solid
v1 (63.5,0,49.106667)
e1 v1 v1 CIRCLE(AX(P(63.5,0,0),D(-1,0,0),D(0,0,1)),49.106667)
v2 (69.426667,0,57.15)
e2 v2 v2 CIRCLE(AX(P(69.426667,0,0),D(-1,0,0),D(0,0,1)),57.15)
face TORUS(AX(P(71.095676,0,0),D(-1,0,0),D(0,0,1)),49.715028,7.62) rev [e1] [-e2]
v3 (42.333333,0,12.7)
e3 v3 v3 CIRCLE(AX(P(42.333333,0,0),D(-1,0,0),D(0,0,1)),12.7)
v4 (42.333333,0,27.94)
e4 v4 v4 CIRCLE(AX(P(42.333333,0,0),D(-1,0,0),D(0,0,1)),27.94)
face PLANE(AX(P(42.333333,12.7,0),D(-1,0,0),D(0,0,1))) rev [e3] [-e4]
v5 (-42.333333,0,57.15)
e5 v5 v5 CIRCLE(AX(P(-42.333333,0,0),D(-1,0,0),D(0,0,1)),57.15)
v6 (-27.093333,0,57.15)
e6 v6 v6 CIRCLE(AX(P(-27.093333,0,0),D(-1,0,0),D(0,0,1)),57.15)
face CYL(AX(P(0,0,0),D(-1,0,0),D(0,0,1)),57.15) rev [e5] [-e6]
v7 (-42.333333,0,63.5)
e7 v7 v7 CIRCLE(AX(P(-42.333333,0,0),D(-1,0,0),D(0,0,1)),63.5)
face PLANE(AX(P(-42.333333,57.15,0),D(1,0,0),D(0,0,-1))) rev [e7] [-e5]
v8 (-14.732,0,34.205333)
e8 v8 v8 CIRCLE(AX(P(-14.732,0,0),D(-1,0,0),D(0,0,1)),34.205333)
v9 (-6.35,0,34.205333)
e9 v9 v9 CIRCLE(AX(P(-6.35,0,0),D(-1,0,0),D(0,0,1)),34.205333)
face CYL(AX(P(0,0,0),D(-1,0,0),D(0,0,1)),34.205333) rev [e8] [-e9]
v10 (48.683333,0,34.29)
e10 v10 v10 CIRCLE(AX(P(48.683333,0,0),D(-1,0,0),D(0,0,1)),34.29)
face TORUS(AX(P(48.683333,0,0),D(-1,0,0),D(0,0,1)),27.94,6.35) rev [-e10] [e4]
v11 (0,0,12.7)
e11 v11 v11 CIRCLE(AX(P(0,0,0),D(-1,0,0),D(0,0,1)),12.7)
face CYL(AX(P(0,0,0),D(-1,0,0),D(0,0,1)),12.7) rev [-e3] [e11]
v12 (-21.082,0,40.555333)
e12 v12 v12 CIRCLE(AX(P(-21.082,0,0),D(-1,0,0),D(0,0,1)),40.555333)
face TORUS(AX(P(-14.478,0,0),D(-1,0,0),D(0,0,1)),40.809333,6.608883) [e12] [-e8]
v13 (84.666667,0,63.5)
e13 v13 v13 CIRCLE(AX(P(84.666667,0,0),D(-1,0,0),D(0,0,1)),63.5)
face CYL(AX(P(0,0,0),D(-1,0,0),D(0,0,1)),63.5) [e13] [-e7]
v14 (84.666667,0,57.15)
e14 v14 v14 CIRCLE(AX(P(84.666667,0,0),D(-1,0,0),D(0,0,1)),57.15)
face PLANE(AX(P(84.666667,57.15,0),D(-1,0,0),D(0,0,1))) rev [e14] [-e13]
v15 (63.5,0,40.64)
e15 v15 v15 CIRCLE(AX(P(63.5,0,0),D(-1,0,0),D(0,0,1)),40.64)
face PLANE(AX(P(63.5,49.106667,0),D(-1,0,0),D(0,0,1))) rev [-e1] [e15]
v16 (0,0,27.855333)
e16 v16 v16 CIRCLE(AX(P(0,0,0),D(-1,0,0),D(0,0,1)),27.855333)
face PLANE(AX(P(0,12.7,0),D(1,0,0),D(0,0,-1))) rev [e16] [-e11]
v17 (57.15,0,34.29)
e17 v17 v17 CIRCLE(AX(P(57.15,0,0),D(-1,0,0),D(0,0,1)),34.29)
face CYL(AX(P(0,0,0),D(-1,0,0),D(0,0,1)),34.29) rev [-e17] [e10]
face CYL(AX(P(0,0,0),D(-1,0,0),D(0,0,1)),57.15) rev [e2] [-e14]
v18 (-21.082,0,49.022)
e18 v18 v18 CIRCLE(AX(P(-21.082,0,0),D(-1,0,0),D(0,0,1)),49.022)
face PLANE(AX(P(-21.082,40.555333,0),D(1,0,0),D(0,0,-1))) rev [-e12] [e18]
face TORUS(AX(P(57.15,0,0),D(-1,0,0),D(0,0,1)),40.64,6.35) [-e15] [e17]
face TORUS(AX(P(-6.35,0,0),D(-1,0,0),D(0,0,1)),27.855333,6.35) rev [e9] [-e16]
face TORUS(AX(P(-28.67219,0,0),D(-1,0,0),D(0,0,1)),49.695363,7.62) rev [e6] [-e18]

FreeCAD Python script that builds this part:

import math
import FreeCAD as App
import Part
import Sketcher
Q = App.Units.Quantity

doc = App.newDocument("Part")
body = doc.addObject("PartDesign::Body", "Body")

sketch1 = body.newObject("Sketcher::SketchObject", "Sketch")
sketch1.AttachmentSupport = (doc.getObject("XY_Plane"), [""])
sketch1.MapMode = "FlatFace"
sketch1.addGeometry(Part.LineSegment(App.Vector(85, 64, 0), App.Vector(-42, 64, 0)), False)
sketch1.addGeometry(Part.LineSegment(App.Vector(-42, 64, 0), App.Vector(-42, 57, 0)), False)
sketch1.addGeometry(Part.LineSegment(App.Vector(-42, 57, 0), App.Vector(-27, 57, 0)), False)
sketch1.addGeometry(Part.ArcOfCircle(Part.Circle(App.Vector(-29, 50, 0), App.Vector(0, 0, 1), 8), math.radians(-5), math.radians(78)), False)
sketch1.addGeometry(Part.LineSegment(App.Vector(-21, 49, 0), App.Vector(-21, 41, 0)), False)
sketch1.addGeometry(Part.ArcOfCircle(Part.Circle(App.Vector(-14, 41, 0), App.Vector(0, 0, 1), 7), math.radians(-178), math.radians(-92)), False)
sketch1.addGeometry(Part.LineSegment(App.Vector(-15, 34, 0), App.Vector(-6, 34, 0)), False)
sketch1.addGeometry(Part.ArcOfCircle(Part.Circle(App.Vector(-6, 28, 0), App.Vector(0, 0, 1), 6), math.radians(0), math.radians(90)), False)
sketch1.addGeometry(Part.LineSegment(App.Vector(0, 28, 0), App.Vector(0, 13, 0)), False)
sketch1.addGeometry(Part.LineSegment(App.Vector(0, 13, 0), App.Vector(42, 13, 0)), False)
sketch1.addGeometry(Part.LineSegment(App.Vector(42, 13, 0), App.Vector(42, 28, 0)), False)
sketch1.addGeometry(Part.ArcOfCircle(Part.Circle(App.Vector(49, 28, 0), App.Vector(0, 0, 1), 6), math.radians(90), math.radians(180)), False)
sketch1.addGeometry(Part.LineSegment(App.Vector(49, 34, 0), App.Vector(57, 34, 0)), False)
sketch1.addGeometry(Part.ArcOfCircle(Part.Circle(App.Vector(57, 41, 0), App.Vector(0, 0, 1), 6), math.radians(-90), math.radians(0)), False)
sketch1.addGeometry(Part.LineSegment(App.Vector(63, 41, 0), App.Vector(63, 49, 0)), False)
sketch1.addGeometry(Part.ArcOfCircle(Part.Circle(App.Vector(71, 50, 0), App.Vector(0, 0, 1), 8), math.radians(103), math.radians(185)), False)
sketch1.addGeometry(Part.LineSegment(App.Vector(69, 57, 0), App.Vector(85, 57, 0)), False)
sketch1.addGeometry(Part.LineSegment(App.Vector(85, 57, 0), App.Vector(85, 64, 0)), False)
sketch1.addConstraint(Sketcher.Constraint("Coincident", 0, 2, 1, 1))
sketch1.addConstraint(Sketcher.Constraint("Coincident", 1, 2, 2, 1))
sketch1.addConstraint(Sketcher.Constraint("Coincident", 2, 2, 3, 2))
sketch1.addConstraint(Sketcher.Constraint("Coincident", 3, 1, 4, 1))
sketch1.addConstraint(Sketcher.Constraint("Coincident", 4, 2, 5, 1))
sketch1.addConstraint(Sketcher.Constraint("Coincident", 5, 2, 6, 1))
sketch1.addConstraint(Sketcher.Constraint("Tangent", 6, 2, 7, 2))
sketch1.addConstraint(Sketcher.Constraint("Tangent", 7, 1, 8, 1))
sketch1.addConstraint(Sketcher.Constraint("Coincident", 8, 2, 9, 1))
sketch1.addConstraint(Sketcher.Constraint("Coincident", 9, 2, 10, 1))
sketch1.addConstraint(Sketcher.Constraint("Tangent", 10, 2, 11, 2))
sketch1.addConstraint(Sketcher.Constraint("Tangent", 11, 1, 12, 1))
sketch1.addConstraint(Sketcher.Constraint("Tangent", 12, 2, 13, 1))
sketch1.addConstraint(Sketcher.Constraint("Tangent", 13, 2, 14, 1))
sketch1.addConstraint(Sketcher.Constraint("Coincident", 14, 2, 15, 2))
sketch1.addConstraint(Sketcher.Constraint("Coincident", 15, 1, 16, 1))
sketch1.addConstraint(Sketcher.Constraint("Coincident", 16, 2, 17, 1))
sketch1.addConstraint(Sketcher.Constraint("Coincident", 17, 2, 0, 1))
sketch1.addConstraint(Sketcher.Constraint("Horizontal", 0))
sketch1.addConstraint(Sketcher.Constraint("Vertical", 1))
sketch1.addConstraint(Sketcher.Constraint("Horizontal", 2))
sketch1.addConstraint(Sketcher.Constraint("Vertical", 4))
sketch1.addConstraint(Sketcher.Constraint("Horizontal", 6))
sketch1.addConstraint(Sketcher.Constraint("Vertical", 8))
sketch1.addConstraint(Sketcher.Constraint("Horizontal", 9))
sketch1.addConstraint(Sketcher.Constraint("Vertical", 10))
sketch1.addConstraint(Sketcher.Constraint("Horizontal", 12))
sketch1.addConstraint(Sketcher.Constraint("Vertical", 14))
sketch1.addConstraint(Sketcher.Constraint("Horizontal", 16))
sketch1.addConstraint(Sketcher.Constraint("Vertical", 17))
sketch1.addConstraint(Sketcher.Constraint("Equal", 7, 11))
sketch1.addConstraint(Sketcher.Constraint("Equal", 11, 13))
sketch1.addConstraint(Sketcher.Constraint("Equal", 3, 15))
sketch1.addConstraint(Sketcher.Constraint("PointOnObject", 7, 1, -2))
sketch1.addConstraint(Sketcher.Constraint("Horizontal", 2, 2, 15, 1))
sketch1.addConstraint(Sketcher.Constraint("Equal", 2, 16))
sketch1.addConstraint(Sketcher.Constraint("Equal", 12, 4))
sketch1.addConstraint(Sketcher.Constraint("Equal", 16, 10))
sketch1.addConstraint(Sketcher.Constraint("Equal", 4, 14))
sketch1.addConstraint(Sketcher.Constraint("Radius", 3, Q("0.3 in")))
sketch1.addConstraint(Sketcher.Constraint("DistanceX", 0, 2, 0, 1, Q("5 in")))
sketch1.addConstraint(Sketcher.Constraint("Radius", 7, Q("0.25 in")))
sketch1.addConstraint(Sketcher.Constraint("DistanceX", 2, 1, 2, 2, Q("0.6 in")))
sketch1.addConstraint(Sketcher.Constraint("DistanceX", 6, 1, 6, 2, Q("0.33 in")))
sketch1.addConstraint(Sketcher.Constraint("DistanceY", 1, 2, 1, 1, Q("0.25 in")))
sketch1.addConstraint(Sketcher.Constraint("DistanceY", -1, 1, 11, 3, Q("1.1 in")))
sketch1.addConstraint(Sketcher.Constraint("DistanceY", -1, 1, 0, 2, Q("2.5 in")))
sketch1.addConstraint(Sketcher.Constraint("DistanceX", -1, 1, 13, 2, Q("2.5 in")))
sketch1.addConstraint(Sketcher.Constraint("DistanceY", 7, 3, 4, 2, Q("0.5 in")))
sketch1.addConstraint(Sketcher.Constraint("DistanceX", 5, 3, -1, 1, Q("0.57 in")))
sketch1.addConstraint(Sketcher.Constraint("DistanceX", 3, 1, -1, 1, Q("0.83 in")))
sketch1.addConstraint(Sketcher.Constraint("DistanceY", -1, 1, 3, 1, Q("1.93 in")))
sketch1.addConstraint(Sketcher.Constraint("DistanceX", 9, 1, 9, 2, 42.333333))
sketch1.addConstraint(Sketcher.Constraint("DistanceX", 3, 3, -1, 1, 28.67219))
revolution = body.newObject("PartDesign::Revolution", "Revolution")
revolution.Profile = sketch1
revolution.ReferenceAxis = (sketch1, ["H_Axis"])
revolution.Angle = 360

doc.recompute()
